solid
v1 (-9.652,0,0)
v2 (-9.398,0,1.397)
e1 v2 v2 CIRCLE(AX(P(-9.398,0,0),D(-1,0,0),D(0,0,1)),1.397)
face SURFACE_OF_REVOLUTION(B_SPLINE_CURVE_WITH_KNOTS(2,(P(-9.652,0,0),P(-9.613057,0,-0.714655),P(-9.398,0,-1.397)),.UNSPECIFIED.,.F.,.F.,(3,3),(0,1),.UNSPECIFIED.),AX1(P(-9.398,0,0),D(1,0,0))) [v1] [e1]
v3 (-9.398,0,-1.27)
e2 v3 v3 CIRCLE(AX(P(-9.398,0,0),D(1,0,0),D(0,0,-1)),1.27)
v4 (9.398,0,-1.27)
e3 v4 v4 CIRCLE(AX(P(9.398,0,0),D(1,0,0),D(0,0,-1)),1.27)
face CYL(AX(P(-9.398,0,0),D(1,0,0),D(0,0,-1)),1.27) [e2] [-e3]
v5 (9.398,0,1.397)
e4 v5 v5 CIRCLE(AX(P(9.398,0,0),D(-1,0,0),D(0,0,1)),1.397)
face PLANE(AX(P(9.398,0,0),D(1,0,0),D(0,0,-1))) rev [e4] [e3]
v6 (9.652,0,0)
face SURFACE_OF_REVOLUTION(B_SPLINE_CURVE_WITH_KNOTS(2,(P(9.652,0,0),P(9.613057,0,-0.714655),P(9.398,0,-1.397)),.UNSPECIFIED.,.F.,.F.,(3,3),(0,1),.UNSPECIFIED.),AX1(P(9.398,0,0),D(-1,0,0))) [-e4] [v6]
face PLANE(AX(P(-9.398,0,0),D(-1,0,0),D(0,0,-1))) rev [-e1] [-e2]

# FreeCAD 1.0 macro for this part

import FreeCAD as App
import Part
import Sketcher

V = App.Vector
Q = App.Units.Quantity

doc = App.newDocument("Part")
params = doc.addObject("Spreadsheet::Sheet", "Params")
for row, (alias, value) in enumerate([
    ("sketch1_diameter", "0.1 in"),
    ("pad1_length", "0.37 in"),
    ("pad1_length2", "0.37 in"),
    ("revolution_angle", "360 deg"),
], start=1):
    params.set(f"A{row}", alias)
    params.set(f"B{row}", "=" + value)
    params.setAlias(f"B{row}", alias)

body = doc.addObject("PartDesign::Body", "Body")

# Sketch on YZ plane
sketch1 = doc.addObject("Sketcher::SketchObject", "Sketch")
body.addObject(sketch1)
sketch1.AttachmentSupport = (doc.YZ_Plane, [""])
sketch1.MapMode = "FlatFace"
sketch1.addGeometry(Part.Circle(V(0, 0, 0), V(0, 0, 1), 1.3), False)
sketch1.addConstraint(Sketcher.Constraint("Coincident", 0, 3, -1, 1))
sketch1.addConstraint(Sketcher.Constraint("Diameter", 0, Q("0.1 in")))
sketch1.setExpression("Constraints[1]", "Params.sketch1_diameter")
pad1 = doc.addObject("PartDesign::Pad", "Pad")
body.addObject(pad1)
pad1.Profile = sketch1
pad1.Type = "TwoLengths"
pad1.setExpression("Length", "Params.pad1_length")
pad1.setExpression("Length2", "Params.pad1_length2")

# Sketch on XZ plane
sketch2 = doc.addObject("Sketcher::SketchObject", "Sketch001")
body.addObject(sketch2)
sketch2.AttachmentSupport = (doc.XZ_Plane, [""])
sketch2.MapMode = "FlatFace"
sketch2.addGeometry(Part.LineSegment(V(9.398, -1.397, 0), V(9.398, 0, 0)), False)
sketch2.addGeometry(Part.LineSegment(V(9.398, 0, 0), V(9.652, 0, 0)), False)
sketch2.addGeometry(Part.BSplineCurve([V(9.398, -1.397, 0), V(9.613057, -0.714655, 0), V(9.652, 0, 0)], [3, 3], [0, 1], False, 2, [1, 1, 1], False), False)
sketch2.addConstraint(Sketcher.Constraint("Block", 2))
sketch2.addConstraint(Sketcher.Constraint("Coincident", 0, 2, 1, 1))
sketch2.addConstraint(Sketcher.Constraint("Coincident", 1, 2, 2, 2))
sketch2.addConstraint(Sketcher.Constraint("Coincident", 2, 1, 0, 1))
sketch2.addConstraint(Sketcher.Constraint("Vertical", 0))
sketch2.addConstraint(Sketcher.Constraint("Horizontal", 1))
revolution = doc.addObject("PartDesign::Revolution", "Revolution")
body.addObject(revolution)
revolution.Profile = sketch2
revolution.ReferenceAxis = (sketch2, ["H_Axis"])
revolution.setExpression("Angle", "Params.revolution_angle")
doc.recompute()

mirrored = doc.addObject("PartDesign::Mirrored", "Mirrored")
body.addObject(mirrored)
mirrored.Originals = [revolution]
mirrored.MirrorPlane = (doc.YZ_Plane, [""])
body.Tip = mirrored

doc.recompute()
